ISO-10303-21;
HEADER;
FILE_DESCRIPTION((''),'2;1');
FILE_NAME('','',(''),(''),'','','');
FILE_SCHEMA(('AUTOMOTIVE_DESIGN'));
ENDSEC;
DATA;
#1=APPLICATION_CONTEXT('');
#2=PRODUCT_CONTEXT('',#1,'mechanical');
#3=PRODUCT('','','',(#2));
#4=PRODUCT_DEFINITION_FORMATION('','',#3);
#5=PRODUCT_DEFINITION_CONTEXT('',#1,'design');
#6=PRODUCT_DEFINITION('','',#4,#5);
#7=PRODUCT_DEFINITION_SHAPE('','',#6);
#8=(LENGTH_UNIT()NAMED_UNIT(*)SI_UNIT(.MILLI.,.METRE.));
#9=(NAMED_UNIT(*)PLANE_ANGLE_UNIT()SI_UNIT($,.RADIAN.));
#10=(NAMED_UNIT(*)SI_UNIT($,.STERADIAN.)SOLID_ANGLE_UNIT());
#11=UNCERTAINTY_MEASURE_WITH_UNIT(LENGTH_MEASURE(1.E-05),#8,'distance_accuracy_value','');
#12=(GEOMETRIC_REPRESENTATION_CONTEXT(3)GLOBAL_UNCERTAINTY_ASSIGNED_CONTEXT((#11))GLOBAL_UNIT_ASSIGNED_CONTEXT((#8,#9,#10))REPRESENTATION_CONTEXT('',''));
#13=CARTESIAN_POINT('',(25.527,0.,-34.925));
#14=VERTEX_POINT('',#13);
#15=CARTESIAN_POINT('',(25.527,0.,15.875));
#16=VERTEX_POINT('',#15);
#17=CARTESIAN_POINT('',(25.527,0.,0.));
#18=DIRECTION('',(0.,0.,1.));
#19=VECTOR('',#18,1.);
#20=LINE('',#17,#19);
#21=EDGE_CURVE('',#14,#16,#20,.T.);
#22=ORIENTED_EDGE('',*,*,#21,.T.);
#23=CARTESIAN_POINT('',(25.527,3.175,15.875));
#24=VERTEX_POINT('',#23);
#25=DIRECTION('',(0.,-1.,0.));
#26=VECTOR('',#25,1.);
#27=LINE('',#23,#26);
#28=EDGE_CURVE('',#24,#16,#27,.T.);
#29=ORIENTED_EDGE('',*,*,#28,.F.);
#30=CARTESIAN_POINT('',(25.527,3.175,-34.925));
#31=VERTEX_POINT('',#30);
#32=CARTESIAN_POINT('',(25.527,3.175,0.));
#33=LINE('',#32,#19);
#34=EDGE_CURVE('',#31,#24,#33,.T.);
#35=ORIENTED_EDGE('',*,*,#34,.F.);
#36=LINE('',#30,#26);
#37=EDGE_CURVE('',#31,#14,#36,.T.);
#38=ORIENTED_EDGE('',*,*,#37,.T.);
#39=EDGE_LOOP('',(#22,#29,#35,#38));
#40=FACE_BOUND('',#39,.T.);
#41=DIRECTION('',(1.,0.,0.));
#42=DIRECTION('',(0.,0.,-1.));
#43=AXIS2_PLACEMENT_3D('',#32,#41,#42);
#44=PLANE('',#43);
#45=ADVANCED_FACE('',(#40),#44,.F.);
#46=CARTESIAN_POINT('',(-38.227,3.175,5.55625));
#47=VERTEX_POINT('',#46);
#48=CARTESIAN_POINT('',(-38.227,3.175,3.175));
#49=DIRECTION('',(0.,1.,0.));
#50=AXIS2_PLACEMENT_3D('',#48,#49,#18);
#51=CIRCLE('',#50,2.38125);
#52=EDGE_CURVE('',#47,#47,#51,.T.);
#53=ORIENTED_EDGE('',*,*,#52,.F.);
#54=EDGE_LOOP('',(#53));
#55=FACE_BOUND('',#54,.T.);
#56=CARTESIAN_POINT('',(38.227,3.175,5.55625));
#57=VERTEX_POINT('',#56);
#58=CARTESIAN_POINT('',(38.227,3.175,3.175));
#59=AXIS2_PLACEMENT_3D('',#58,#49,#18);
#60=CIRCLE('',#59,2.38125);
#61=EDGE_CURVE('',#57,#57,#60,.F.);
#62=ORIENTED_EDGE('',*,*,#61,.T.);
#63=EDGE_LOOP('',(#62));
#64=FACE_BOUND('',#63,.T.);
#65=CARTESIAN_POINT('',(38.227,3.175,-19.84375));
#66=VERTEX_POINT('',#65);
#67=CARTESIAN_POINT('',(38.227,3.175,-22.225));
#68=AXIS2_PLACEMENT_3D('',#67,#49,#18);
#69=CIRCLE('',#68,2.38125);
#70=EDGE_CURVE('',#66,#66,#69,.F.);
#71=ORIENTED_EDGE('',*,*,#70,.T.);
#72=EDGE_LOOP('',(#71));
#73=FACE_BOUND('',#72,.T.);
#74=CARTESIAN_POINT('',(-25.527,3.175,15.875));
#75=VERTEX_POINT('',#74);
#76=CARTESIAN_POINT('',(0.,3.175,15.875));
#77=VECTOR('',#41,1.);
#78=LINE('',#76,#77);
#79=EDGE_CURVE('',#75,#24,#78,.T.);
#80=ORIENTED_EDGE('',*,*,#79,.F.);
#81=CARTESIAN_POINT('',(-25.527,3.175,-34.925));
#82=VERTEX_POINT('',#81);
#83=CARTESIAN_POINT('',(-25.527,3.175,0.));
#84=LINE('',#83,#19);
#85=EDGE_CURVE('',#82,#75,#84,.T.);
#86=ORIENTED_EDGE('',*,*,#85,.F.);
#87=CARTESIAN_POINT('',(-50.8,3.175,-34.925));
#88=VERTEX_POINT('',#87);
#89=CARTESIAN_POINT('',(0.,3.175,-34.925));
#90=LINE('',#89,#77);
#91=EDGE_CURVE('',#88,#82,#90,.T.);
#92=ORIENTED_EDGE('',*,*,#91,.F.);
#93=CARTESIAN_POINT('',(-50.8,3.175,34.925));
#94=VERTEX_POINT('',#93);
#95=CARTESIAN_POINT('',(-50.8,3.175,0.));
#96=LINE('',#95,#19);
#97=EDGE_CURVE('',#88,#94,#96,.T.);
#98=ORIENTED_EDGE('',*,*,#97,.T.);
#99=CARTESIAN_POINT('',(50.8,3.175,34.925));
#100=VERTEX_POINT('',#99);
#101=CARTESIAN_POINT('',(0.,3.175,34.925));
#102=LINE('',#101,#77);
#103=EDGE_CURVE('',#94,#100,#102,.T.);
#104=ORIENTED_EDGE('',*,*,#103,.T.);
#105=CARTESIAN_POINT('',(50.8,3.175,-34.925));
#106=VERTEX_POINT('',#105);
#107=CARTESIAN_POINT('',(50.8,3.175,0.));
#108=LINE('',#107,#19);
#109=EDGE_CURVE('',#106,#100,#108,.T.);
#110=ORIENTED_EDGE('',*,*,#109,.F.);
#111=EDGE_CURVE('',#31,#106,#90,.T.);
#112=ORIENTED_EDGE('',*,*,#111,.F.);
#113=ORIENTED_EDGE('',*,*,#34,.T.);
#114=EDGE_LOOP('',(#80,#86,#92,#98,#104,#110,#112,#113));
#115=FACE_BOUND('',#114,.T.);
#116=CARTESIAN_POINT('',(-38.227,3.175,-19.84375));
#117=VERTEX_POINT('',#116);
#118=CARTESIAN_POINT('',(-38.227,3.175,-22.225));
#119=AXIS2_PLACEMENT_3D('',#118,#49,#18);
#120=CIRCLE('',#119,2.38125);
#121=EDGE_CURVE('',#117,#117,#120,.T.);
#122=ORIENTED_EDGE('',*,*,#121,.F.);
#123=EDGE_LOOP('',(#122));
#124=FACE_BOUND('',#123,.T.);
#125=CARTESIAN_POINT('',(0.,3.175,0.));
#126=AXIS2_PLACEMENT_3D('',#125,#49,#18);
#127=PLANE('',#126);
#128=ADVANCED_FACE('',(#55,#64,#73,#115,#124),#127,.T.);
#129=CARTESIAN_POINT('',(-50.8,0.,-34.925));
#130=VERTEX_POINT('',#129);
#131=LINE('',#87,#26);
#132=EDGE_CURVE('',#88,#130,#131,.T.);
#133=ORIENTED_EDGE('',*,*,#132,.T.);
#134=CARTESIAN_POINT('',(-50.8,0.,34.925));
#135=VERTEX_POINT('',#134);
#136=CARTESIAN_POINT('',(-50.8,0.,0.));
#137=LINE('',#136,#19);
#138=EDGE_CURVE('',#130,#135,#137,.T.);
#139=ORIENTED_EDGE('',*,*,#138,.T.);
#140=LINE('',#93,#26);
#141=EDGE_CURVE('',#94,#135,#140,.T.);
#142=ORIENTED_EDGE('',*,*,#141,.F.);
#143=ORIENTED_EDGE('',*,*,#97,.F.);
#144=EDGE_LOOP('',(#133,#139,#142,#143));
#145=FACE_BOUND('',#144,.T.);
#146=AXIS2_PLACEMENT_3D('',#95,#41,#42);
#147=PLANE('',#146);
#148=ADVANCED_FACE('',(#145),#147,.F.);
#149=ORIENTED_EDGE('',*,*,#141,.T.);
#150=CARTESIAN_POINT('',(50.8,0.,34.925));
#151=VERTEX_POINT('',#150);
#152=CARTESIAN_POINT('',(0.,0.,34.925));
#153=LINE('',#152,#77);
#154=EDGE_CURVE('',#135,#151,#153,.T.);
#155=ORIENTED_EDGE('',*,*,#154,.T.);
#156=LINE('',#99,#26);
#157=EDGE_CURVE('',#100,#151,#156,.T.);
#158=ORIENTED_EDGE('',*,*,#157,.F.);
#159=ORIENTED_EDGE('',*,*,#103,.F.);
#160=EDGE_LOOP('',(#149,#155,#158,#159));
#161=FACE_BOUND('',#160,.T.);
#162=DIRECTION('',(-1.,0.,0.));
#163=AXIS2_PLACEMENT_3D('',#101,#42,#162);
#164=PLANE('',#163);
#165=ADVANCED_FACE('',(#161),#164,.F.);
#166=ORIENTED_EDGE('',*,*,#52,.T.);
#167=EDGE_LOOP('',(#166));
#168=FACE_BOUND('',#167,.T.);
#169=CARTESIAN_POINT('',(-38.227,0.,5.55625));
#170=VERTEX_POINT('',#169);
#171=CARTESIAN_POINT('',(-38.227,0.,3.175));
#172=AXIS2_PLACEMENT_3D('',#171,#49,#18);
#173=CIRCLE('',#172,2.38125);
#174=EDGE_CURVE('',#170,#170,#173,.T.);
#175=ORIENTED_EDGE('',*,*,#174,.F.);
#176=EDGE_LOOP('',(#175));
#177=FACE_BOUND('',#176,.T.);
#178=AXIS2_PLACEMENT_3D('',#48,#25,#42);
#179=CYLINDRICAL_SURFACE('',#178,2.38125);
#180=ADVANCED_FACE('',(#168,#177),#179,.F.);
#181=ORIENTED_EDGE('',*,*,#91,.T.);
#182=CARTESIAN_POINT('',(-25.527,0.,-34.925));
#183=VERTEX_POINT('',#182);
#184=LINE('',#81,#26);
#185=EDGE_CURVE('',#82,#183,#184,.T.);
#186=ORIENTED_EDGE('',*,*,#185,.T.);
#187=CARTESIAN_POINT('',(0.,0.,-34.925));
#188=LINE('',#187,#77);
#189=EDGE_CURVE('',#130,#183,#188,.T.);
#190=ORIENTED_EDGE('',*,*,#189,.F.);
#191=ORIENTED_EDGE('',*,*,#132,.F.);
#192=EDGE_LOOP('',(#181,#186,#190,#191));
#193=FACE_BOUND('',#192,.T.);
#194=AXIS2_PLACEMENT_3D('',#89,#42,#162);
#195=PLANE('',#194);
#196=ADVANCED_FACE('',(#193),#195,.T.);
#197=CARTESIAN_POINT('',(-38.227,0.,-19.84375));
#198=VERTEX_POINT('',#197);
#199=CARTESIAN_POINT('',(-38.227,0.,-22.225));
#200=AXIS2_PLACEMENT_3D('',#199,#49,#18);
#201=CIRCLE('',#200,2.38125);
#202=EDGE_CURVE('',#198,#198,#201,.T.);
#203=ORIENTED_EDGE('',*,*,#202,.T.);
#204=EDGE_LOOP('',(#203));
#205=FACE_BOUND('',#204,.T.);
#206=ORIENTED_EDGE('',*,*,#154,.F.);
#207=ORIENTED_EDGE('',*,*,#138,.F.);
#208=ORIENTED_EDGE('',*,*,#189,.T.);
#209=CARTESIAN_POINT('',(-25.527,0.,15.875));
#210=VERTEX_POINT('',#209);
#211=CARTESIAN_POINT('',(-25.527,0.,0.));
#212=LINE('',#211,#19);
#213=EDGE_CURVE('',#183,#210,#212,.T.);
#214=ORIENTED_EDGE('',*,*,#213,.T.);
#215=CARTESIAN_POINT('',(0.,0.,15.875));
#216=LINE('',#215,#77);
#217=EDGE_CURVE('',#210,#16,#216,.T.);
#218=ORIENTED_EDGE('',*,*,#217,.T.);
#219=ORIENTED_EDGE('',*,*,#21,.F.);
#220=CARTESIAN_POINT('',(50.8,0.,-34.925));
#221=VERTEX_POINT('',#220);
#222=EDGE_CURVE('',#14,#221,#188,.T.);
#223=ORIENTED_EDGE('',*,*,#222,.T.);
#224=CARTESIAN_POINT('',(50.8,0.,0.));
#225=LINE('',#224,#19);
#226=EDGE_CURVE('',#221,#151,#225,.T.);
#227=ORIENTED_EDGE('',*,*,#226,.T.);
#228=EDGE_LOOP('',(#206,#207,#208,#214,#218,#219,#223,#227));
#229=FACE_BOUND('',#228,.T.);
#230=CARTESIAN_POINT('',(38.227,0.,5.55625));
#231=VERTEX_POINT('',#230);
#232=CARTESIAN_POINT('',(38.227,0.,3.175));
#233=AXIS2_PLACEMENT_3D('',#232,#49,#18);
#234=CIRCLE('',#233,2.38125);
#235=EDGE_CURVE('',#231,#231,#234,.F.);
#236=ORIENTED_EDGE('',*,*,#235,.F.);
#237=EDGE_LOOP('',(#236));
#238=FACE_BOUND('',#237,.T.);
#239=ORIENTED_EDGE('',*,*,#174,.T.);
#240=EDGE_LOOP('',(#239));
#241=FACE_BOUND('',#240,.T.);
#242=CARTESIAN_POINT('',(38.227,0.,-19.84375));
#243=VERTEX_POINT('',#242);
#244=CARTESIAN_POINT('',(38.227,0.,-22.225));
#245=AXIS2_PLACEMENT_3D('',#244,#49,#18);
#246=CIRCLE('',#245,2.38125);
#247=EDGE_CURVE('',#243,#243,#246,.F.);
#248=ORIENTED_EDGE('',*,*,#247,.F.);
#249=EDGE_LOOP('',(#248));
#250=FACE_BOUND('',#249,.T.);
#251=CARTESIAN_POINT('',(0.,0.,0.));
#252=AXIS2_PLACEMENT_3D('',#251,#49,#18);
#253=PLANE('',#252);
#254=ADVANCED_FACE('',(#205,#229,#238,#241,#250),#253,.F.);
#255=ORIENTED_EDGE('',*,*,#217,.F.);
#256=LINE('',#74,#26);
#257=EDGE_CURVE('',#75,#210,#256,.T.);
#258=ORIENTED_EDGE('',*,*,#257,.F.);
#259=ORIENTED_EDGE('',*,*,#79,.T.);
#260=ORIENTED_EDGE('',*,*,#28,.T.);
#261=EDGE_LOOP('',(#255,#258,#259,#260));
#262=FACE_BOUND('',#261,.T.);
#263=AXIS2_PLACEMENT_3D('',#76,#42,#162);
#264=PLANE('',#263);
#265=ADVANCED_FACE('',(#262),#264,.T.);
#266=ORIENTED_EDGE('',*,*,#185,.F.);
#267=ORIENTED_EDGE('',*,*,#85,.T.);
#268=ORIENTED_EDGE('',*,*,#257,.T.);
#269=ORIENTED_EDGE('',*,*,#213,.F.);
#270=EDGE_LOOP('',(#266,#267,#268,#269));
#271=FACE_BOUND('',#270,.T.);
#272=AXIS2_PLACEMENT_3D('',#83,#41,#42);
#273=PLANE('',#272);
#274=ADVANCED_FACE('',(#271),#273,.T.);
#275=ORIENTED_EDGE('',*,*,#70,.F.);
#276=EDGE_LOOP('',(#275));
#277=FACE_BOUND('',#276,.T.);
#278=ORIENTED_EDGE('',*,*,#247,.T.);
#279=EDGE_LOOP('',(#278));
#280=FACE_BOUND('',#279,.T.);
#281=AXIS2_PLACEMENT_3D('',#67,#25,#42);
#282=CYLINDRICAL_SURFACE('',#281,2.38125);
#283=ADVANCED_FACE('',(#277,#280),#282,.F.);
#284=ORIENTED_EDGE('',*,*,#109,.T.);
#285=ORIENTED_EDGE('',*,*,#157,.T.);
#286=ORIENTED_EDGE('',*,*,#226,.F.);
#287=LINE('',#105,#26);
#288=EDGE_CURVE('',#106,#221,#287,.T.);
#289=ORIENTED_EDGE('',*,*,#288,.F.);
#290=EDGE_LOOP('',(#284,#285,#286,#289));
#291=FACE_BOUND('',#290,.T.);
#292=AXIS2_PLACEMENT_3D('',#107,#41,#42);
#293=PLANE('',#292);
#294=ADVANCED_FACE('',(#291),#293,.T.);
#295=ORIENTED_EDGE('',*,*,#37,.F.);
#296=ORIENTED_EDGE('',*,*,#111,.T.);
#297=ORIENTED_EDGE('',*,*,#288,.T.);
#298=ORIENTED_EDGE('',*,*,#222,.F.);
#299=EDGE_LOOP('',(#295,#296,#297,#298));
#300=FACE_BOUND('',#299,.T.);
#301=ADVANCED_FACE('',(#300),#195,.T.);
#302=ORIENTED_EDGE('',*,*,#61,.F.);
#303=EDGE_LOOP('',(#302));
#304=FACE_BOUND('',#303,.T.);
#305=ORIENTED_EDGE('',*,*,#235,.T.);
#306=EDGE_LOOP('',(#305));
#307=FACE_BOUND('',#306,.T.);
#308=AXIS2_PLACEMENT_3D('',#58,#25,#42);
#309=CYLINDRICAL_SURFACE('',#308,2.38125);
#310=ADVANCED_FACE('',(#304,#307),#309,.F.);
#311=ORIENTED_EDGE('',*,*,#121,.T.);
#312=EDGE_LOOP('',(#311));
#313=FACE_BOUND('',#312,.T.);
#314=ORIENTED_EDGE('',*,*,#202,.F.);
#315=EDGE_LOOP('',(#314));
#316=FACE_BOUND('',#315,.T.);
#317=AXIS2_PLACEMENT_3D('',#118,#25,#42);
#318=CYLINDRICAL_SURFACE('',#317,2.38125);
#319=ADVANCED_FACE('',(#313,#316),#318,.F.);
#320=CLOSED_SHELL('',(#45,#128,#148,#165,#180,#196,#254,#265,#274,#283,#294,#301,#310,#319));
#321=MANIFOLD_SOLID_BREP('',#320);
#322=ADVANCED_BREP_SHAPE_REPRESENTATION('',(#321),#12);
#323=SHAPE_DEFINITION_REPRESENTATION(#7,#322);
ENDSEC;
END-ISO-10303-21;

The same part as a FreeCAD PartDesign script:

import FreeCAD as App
import Part
import Sketcher
Q = App.Units.Quantity


def add_polygon(sketch, points):
    """Adds a closed chain of lines whose ends are joined by coincident constraints."""
    first, n = sketch.GeometryCount, len(points)
    for a, b in zip(points, points[1:] + points[:1]):
        sketch.addGeometry(Part.LineSegment(App.Vector(*a, 0), App.Vector(*b, 0)), False)
    for i in range(n):
        sketch.addConstraint(Sketcher.Constraint("Coincident", first + i, 2, first + (i + 1) % n, 1))

doc = App.newDocument("Part")
params = doc.addObject("Spreadsheet::Sheet", "Params")
for row, (alias, value) in enumerate([
    ("sketch1_width", "4 in"),
    ("sketch1_height", "2 in"),
    ("sketch1_diameter", "0.1875 in"),
    ("sketch1_width2", "2.01 in"),
    ("sketch1_height2", "2.75 in"),
    ("pad1_length", "0.125 in"),
], start=1):
    params.set(f"A{row}", alias)
    params.set(f"B{row}", "=" + value)
    params.setAlias(f"B{row}", alias)

body = doc.addObject("PartDesign::Body", "Body")

sketch1 = body.newObject("Sketcher::SketchObject", "Sketch")
sketch1.AttachmentSupport = (doc.getObject("XZ_Plane"), [""])
sketch1.MapMode = "FlatFace"
add_polygon(sketch1, [(-25.527, -34.925), (-50.8, -34.925), (-50.8, 34.925), (50.8, 34.925), (50.8, -34.925), (25.527, -34.925), (25.527, 15.875), (-25.527, 15.875)])
sketch1.addGeometry(Part.Circle(App.Vector(-38.227, 3.175, 0), App.Vector(0, 0, 1), 2.38125), False)
sketch1.addGeometry(Part.Circle(App.Vector(38.227, 3.175, 0), App.Vector(0, 0, 1), 2.38125), False)
sketch1.addGeometry(Part.Circle(App.Vector(-38.227, -22.225, 0), App.Vector(0, 0, 1), 2.38125), False)
sketch1.addGeometry(Part.Circle(App.Vector(38.227, -22.225, 0), App.Vector(0, 0, 1), 2.38125), False)
sketch1.addConstraint([
    Sketcher.Constraint("Horizontal", 0),
    Sketcher.Constraint("Vertical", 1),
    Sketcher.Constraint("Horizontal", 2),
    Sketcher.Constraint("Vertical", 3),
    Sketcher.Constraint("Horizontal", 4),
    Sketcher.Constraint("Vertical", 5),
    Sketcher.Constraint("Horizontal", 6),
    Sketcher.Constraint("Vertical", 7),
    Sketcher.Constraint("Equal", 8, 9),
    Sketcher.Constraint("Equal", 9, 10),
    Sketcher.Constraint("Equal", 10, 11),
    Sketcher.Constraint("Symmetric", 0, 2, 2, 2, -1, 1),
    Sketcher.Constraint("Symmetric", 8, 3, 9, 3, -2),
    Sketcher.Constraint("Symmetric", 10, 3, 11, 3, -2),
    Sketcher.Constraint("Symmetric", 4, 2, 7, 2, -2),
    Sketcher.Constraint("Vertical", 8, 3, 10, 3),
    Sketcher.Constraint("DistanceX", 2, 1, 2, 2, Q("4 in")),
    Sketcher.Constraint("DistanceY", 5, 1, 5, 2, Q("2 in")),
    Sketcher.Constraint("Diameter", 8, Q("0.1875 in")),
    Sketcher.Constraint("DistanceY", 10, 3, 8, 3, Q("1 in")),
    Sketcher.Constraint("DistanceX", 6, 2, 6, 1, Q("2.01 in")),
    Sketcher.Constraint("DistanceY", 1, 1, 1, 2, Q("2.75 in")),
    Sketcher.Constraint("DistanceY", 0, 2, 10, 3, Q("0.5 in")),
    Sketcher.Constraint("DistanceX", 4, 2, 11, 3, Q("0.5 in")),
])
sketch1.setExpression("Constraints[24]", "Params.sketch1_width")
sketch1.setExpression("Constraints[25]", "Params.sketch1_height")
sketch1.setExpression("Constraints[26]", "Params.sketch1_diameter")
sketch1.setExpression("Constraints[28]", "Params.sketch1_width2")
sketch1.setExpression("Constraints[29]", "Params.sketch1_height2")
pad1 = body.newObject("PartDesign::Pad", "Pad")
pad1.Profile = sketch1
pad1.setExpression("Length", "Params.pad1_length")
pad1.Reversed = True

doc.recompute()
